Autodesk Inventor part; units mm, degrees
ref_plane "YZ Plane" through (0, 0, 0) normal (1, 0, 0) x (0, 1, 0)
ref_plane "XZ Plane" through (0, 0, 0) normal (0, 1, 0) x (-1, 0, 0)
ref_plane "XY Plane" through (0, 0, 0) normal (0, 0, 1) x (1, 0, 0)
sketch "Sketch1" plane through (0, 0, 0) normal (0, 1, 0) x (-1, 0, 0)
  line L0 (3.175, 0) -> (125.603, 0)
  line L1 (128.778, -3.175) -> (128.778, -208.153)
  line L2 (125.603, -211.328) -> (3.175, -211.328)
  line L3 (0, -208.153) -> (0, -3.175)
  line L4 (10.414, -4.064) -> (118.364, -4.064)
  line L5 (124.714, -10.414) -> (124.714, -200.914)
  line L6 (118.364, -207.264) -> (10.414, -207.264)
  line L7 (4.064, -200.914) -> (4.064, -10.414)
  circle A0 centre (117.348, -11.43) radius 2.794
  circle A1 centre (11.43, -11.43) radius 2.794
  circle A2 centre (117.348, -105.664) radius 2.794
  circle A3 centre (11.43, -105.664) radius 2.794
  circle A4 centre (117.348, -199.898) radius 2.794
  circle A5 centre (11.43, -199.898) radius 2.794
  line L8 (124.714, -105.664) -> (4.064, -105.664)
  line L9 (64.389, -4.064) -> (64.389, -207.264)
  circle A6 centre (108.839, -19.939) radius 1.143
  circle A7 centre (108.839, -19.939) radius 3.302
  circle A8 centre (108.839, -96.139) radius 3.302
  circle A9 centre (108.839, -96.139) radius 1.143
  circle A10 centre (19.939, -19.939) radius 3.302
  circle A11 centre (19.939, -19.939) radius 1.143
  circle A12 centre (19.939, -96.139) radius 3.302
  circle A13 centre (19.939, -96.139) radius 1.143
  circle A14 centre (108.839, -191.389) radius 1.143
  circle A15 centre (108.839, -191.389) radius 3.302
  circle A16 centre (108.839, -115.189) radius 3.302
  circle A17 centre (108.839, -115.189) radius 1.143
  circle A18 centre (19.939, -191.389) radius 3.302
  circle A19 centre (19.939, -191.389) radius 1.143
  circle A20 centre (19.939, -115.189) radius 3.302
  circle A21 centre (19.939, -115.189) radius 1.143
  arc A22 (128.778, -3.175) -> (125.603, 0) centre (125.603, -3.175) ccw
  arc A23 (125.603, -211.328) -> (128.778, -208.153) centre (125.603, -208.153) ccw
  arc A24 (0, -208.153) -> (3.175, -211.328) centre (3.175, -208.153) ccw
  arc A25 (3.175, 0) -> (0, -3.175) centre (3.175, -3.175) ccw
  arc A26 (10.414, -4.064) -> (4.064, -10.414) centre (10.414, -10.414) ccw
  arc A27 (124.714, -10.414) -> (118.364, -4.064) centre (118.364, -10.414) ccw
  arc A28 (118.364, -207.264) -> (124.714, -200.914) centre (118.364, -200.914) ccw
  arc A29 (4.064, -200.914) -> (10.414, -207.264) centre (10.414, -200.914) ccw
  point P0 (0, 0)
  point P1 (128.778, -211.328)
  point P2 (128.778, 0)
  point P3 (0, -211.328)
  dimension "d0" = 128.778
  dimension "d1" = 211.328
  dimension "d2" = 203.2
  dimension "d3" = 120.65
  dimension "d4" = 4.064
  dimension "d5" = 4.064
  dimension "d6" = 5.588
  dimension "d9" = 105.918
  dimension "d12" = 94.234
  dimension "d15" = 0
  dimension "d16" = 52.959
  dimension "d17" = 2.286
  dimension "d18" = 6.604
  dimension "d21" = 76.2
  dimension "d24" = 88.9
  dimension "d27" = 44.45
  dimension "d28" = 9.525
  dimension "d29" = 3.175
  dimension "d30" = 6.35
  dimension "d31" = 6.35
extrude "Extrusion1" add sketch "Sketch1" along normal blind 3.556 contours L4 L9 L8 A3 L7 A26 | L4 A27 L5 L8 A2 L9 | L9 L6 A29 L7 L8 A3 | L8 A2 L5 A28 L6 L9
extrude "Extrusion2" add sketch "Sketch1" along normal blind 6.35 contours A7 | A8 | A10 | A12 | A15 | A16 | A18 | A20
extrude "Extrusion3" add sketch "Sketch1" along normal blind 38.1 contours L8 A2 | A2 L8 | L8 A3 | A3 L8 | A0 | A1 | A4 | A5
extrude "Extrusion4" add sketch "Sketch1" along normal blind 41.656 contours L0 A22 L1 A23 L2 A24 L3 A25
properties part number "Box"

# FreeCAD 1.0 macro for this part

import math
import FreeCAD as App
import Part
import Sketcher

V = App.Vector
Q = App.Units.Quantity

doc = App.newDocument("Part")
body = doc.addObject("PartDesign::Body", "Body")

# Sketch on XZ plane
sketch1 = body.newObject("Sketcher::SketchObject", "Sketch")
sketch1.AttachmentSupport = (doc.getObject("XZ_Plane"), [""])
sketch1.MapMode = "FlatFace"
sketch1.addGeometry(Part.ArcOfCircle(Part.Circle(V(-10.4, -10.4, 0), V(0, 0, 1), 6.3), math.radians(0), math.radians(90)), False)
sketch1.addGeometry(Part.LineSegment(V(-4.1, -10.4, 0), V(-4.1, -200.9, 0)), False)
sketch1.addGeometry(Part.ArcOfCircle(Part.Circle(V(-10.4, -200.9, 0), V(0, 0, 1), 6.3), math.radians(-90), math.radians(0)), False)
sketch1.addGeometry(Part.LineSegment(V(-10.4, -207.3, 0), V(-118.4, -207.3, 0)), False)
sketch1.addGeometry(Part.ArcOfCircle(Part.Circle(V(-118.4, -200.9, 0), V(0, 0, 1), 6.4), math.radians(180), math.radians(270)), False)
sketch1.addGeometry(Part.LineSegment(V(-124.7, -200.9, 0), V(-124.7, -10.4, 0)), False)
sketch1.addGeometry(Part.ArcOfCircle(Part.Circle(V(-118.4, -10.4, 0), V(0, 0, 1), 6.3), math.radians(90), math.radians(180)), False)
sketch1.addGeometry(Part.LineSegment(V(-118.4, -4.1, 0), V(-10.4, -4.1, 0)), False)
sketch1.addGeometry(Part.Circle(V(-11.4, -105.7, 0), V(0, 0, 1), 2.8), False)
sketch1.addGeometry(Part.Circle(V(-19.9, -96.1, 0), V(0, 0, 1), 3.3), False)
sketch1.addGeometry(Part.Circle(V(-11.4, -11.4, 0), V(0, 0, 1), 2.8), False)
sketch1.addGeometry(Part.Circle(V(-19.9, -19.9, 0), V(0, 0, 1), 3.3), False)
sketch1.addGeometry(Part.Circle(V(-117.3, -105.7, 0), V(0, 0, 1), 2.8), False)
sketch1.addGeometry(Part.Circle(V(-117.3, -11.4, 0), V(0, 0, 1), 2.8), False)
sketch1.addGeometry(Part.Circle(V(-108.8, -96.1, 0), V(0, 0, 1), 3.3), False)
sketch1.addGeometry(Part.Circle(V(-108.8, -19.9, 0), V(0, 0, 1), 3.3), False)
sketch1.addGeometry(Part.Circle(V(-19.9, -191.4, 0), V(0, 0, 1), 3.3), False)
sketch1.addGeometry(Part.Circle(V(-19.9, -115.2, 0), V(0, 0, 1), 3.3), False)
sketch1.addGeometry(Part.Circle(V(-11.4, -199.9, 0), V(0, 0, 1), 2.8), False)
sketch1.addGeometry(Part.Circle(V(-117.3, -199.9, 0), V(0, 0, 1), 2.8), False)
sketch1.addGeometry(Part.Circle(V(-108.8, -115.2, 0), V(0, 0, 1), 3.3), False)
sketch1.addGeometry(Part.Circle(V(-108.8, -191.4, 0), V(0, 0, 1), 3.3), False)
sketch1.addConstraint(Sketcher.Constraint("Tangent", 0, 1, 1, 1))
sketch1.addConstraint(Sketcher.Constraint("Tangent", 1, 2, 2, 2))
sketch1.addConstraint(Sketcher.Constraint("Tangent", 2, 1, 3, 1))
sketch1.addConstraint(Sketcher.Constraint("Tangent", 3, 2, 4, 2))
sketch1.addConstraint(Sketcher.Constraint("Tangent", 4, 1, 5, 1))
sketch1.addConstraint(Sketcher.Constraint("Tangent", 5, 2, 6, 2))
sketch1.addConstraint(Sketcher.Constraint("Tangent", 6, 1, 7, 1))
sketch1.addConstraint(Sketcher.Constraint("Tangent", 7, 2, 0, 2))
sketch1.addConstraint(Sketcher.Constraint("Vertical", 1))
sketch1.addConstraint(Sketcher.Constraint("Horizontal", 3))
sketch1.addConstraint(Sketcher.Constraint("Vertical", 5))
sketch1.addConstraint(Sketcher.Constraint("Horizontal", 7))
sketch1.addConstraint(Sketcher.Constraint("Equal", 0, 2))
sketch1.addConstraint(Sketcher.Constraint("Equal", 2, 4))
sketch1.addConstraint(Sketcher.Constraint("Equal", 4, 6))
sketch1.addConstraint(Sketcher.Constraint("Equal", 8, 10))
sketch1.addConstraint(Sketcher.Constraint("Equal", 9, 11))
sketch1.addConstraint(Sketcher.Constraint("Equal", 10, 12))
sketch1.addConstraint(Sketcher.Constraint("Equal", 12, 13))
sketch1.addConstraint(Sketcher.Constraint("Equal", 11, 14))
sketch1.addConstraint(Sketcher.Constraint("Equal", 14, 15))
sketch1.addConstraint(Sketcher.Constraint("Equal", 15, 16))
sketch1.addConstraint(Sketcher.Constraint("Equal", 16, 17))
sketch1.addConstraint(Sketcher.Constraint("Equal", 13, 18))
sketch1.addConstraint(Sketcher.Constraint("Equal", 18, 19))
sketch1.addConstraint(Sketcher.Constraint("Equal", 17, 20))
sketch1.addConstraint(Sketcher.Constraint("Equal", 20, 21))
sketch1.addConstraint(Sketcher.Constraint("Horizontal", 8, 3, 12, 3))
sketch1.addConstraint(Sketcher.Constraint("Horizontal", 10, 3, 13, 3))
sketch1.addConstraint(Sketcher.Constraint("Horizontal", 9, 3, 14, 3))
sketch1.addConstraint(Sketcher.Constraint("Horizontal", 11, 3, 15, 3))
sketch1.addConstraint(Sketcher.Constraint("Horizontal", 18, 3, 19, 3))
sketch1.addConstraint(Sketcher.Constraint("Horizontal", 17, 3, 20, 3))
sketch1.addConstraint(Sketcher.Constraint("Horizontal", 16, 3, 21, 3))
sketch1.addConstraint(Sketcher.Constraint("Vertical", 8, 3, 10, 3))
sketch1.addConstraint(Sketcher.Constraint("Vertical", 9, 3, 11, 3))
sketch1.addConstraint(Sketcher.Constraint("Vertical", 12, 3, 13, 3))
sketch1.addConstraint(Sketcher.Constraint("Vertical", 14, 3, 15, 3))
sketch1.addConstraint(Sketcher.Constraint("Vertical", 11, 3, 16, 3))
sketch1.addConstraint(Sketcher.Constraint("Vertical", 16, 3, 17, 3))
sketch1.addConstraint(Sketcher.Constraint("Vertical", 10, 3, 18, 3))
sketch1.addConstraint(Sketcher.Constraint("Vertical", 13, 3, 19, 3))
sketch1.addConstraint(Sketcher.Constraint("Vertical", 15, 3, 20, 3))
sketch1.addConstraint(Sketcher.Constraint("Vertical", 20, 3, 21, 3))
sketch1.addConstraint(Sketcher.Constraint("Diameter", 8, Q("0.22 in")))
sketch1.addConstraint(Sketcher.Constraint("Diameter", 9, Q("0.26 in")))
sketch1.addConstraint(Sketcher.Constraint("Radius", 0, Q("0.25 in")))
sketch1.addConstraint(Sketcher.Constraint("DistanceY", 9, 3, 11, 3, Q("3 in")))
sketch1.addConstraint(Sketcher.Constraint("DistanceY", 16, 3, 17, 3, Q("3 in")))
sketch1.addConstraint(Sketcher.Constraint("DistanceX", 14, 3, 9, 3, Q("3.5 in")))
sketch1.addConstraint(Sketcher.Constraint("DistanceX", 0, 1, -1, 1, Q("0.16 in")))
sketch1.addConstraint(Sketcher.Constraint("DistanceY", 6, 1, -1, 1, Q("0.16 in")))
sketch1.addConstraint(Sketcher.Constraint("DistanceY", 8, 3, 10, 3, Q("3.71 in")))
sketch1.addConstraint(Sketcher.Constraint("DistanceX", 12, 3, 8, 3, Q("4.17 in")))
sketch1.addConstraint(Sketcher.Constraint("DistanceY", 18, 3, 8, 3, Q("3.71 in")))
sketch1.addConstraint(Sketcher.Constraint("DistanceY", 1, 2, 1, 1, Q("7.5 in")))
sketch1.addConstraint(Sketcher.Constraint("DistanceY", 8, 3, 9, 3, Q("0.375 in")))
sketch1.addConstraint(Sketcher.Constraint("DistanceX", 9, 3, 0, 3, Q("0.375 in")))
sketch1.addConstraint(Sketcher.Constraint("DistanceY", 11, 3, 0, 3, Q("0.375 in")))
sketch1.addConstraint(Sketcher.Constraint("DistanceX", 6, 3, 14, 3, Q("0.375 in")))
sketch1.addConstraint(Sketcher.Constraint("DistanceY", 2, 3, 16, 3, Q("0.375 in")))
sketch1.addConstraint(Sketcher.Constraint("DistanceX", 8, 3, -1, 1, Q("0.45 in")))
pad1 = body.newObject("PartDesign::Pad", "Pad")
pad1.Profile = sketch1
pad1.Length = Q("0.14 in")
pad1.Reversed = True

# Sketch on XZ plane
sketch2 = body.newObject("Sketcher::SketchObject", "Sketch001")
sketch2.AttachmentSupport = (doc.getObject("XZ_Plane"), [""])
sketch2.MapMode = "FlatFace"
sketch2.addGeometry(Part.Circle(V(-108.8, -19.9, 0), V(0, 0, 1), 3.3), False)
sketch2.addGeometry(Part.Circle(V(-108.8, -19.9, 0), V(0, 0, 1), 1.1), False)
sketch2.addGeometry(Part.Circle(V(-108.8, -96.1, 0), V(0, 0, 1), 3.3), False)
sketch2.addGeometry(Part.Circle(V(-108.8, -96.1, 0), V(0, 0, 1), 1.1), False)
sketch2.addGeometry(Part.Circle(V(-19.9, -19.9, 0), V(0, 0, 1), 3.3), False)
sketch2.addGeometry(Part.Circle(V(-19.9, -19.9, 0), V(0, 0, 1), 1.1), False)
sketch2.addGeometry(Part.Circle(V(-19.9, -96.1, 0), V(0, 0, 1), 3.3), False)
sketch2.addGeometry(Part.Circle(V(-19.9, -96.1, 0), V(0, 0, 1), 1.1), False)
sketch2.addGeometry(Part.Circle(V(-108.8, -191.4, 0), V(0, 0, 1), 3.3), False)
sketch2.addGeometry(Part.Circle(V(-108.8, -191.4, 0), V(0, 0, 1), 1.1), False)
sketch2.addGeometry(Part.Circle(V(-108.8, -115.2, 0), V(0, 0, 1), 3.3), False)
sketch2.addGeometry(Part.Circle(V(-108.8, -115.2, 0), V(0, 0, 1), 1.1), False)
sketch2.addGeometry(Part.Circle(V(-19.9, -191.4, 0), V(0, 0, 1), 3.3), False)
sketch2.addGeometry(Part.Circle(V(-19.9, -191.4, 0), V(0, 0, 1), 1.1), False)
sketch2.addGeometry(Part.Circle(V(-19.9, -115.2, 0), V(0, 0, 1), 3.3), False)
sketch2.addGeometry(Part.Circle(V(-19.9, -115.2, 0), V(0, 0, 1), 1.1), False)
sketch2.addConstraint(Sketcher.Constraint("Coincident", 1, 3, 0, 3))
sketch2.addConstraint(Sketcher.Constraint("Coincident", 3, 3, 2, 3))
sketch2.addConstraint(Sketcher.Constraint("Coincident", 5, 3, 4, 3))
sketch2.addConstraint(Sketcher.Constraint("Coincident", 7, 3, 6, 3))
sketch2.addConstraint(Sketcher.Constraint("Coincident", 9, 3, 8, 3))
sketch2.addConstraint(Sketcher.Constraint("Coincident", 11, 3, 10, 3))
sketch2.addConstraint(Sketcher.Constraint("Coincident", 13, 3, 12, 3))
sketch2.addConstraint(Sketcher.Constraint("Coincident", 15, 3, 14, 3))
sketch2.addConstraint(Sketcher.Constraint("Equal", 0, 2))
sketch2.addConstraint(Sketcher.Constraint("Equal", 1, 3))
sketch2.addConstraint(Sketcher.Constraint("Equal", 2, 4))
sketch2.addConstraint(Sketcher.Constraint("Equal", 3, 5))
sketch2.addConstraint(Sketcher.Constraint("Equal", 4, 6))
sketch2.addConstraint(Sketcher.Constraint("Equal", 5, 7))
sketch2.addConstraint(Sketcher.Constraint("Equal", 6, 8))
sketch2.addConstraint(Sketcher.Constraint("Equal", 7, 9))
sketch2.addConstraint(Sketcher.Constraint("Equal", 8, 10))
sketch2.addConstraint(Sketcher.Constraint("Equal", 9, 11))
sketch2.addConstraint(Sketcher.Constraint("Equal", 10, 12))
sketch2.addConstraint(Sketcher.Constraint("Equal", 11, 13))
sketch2.addConstraint(Sketcher.Constraint("Equal", 12, 14))
sketch2.addConstraint(Sketcher.Constraint("Equal", 13, 15))
sketch2.addConstraint(Sketcher.Constraint("Horizontal", 1, 3, 4, 3))
sketch2.addConstraint(Sketcher.Constraint("Horizontal", 3, 3, 6, 3))
sketch2.addConstraint(Sketcher.Constraint("Horizontal", 9, 3, 12, 3))
sketch2.addConstraint(Sketcher.Constraint("Horizontal", 11, 3, 14, 3))
sketch2.addConstraint(Sketcher.Constraint("Vertical", 1, 3, 2, 3))
sketch2.addConstraint(Sketcher.Constraint("Vertical", 5, 3, 6, 3))
sketch2.addConstraint(Sketcher.Constraint("Vertical", 3, 3, 8, 3))
sketch2.addConstraint(Sketcher.Constraint("Vertical", 9, 3, 10, 3))
sketch2.addConstraint(Sketcher.Constraint("Vertical", 7, 3, 12, 3))
sketch2.addConstraint(Sketcher.Constraint("Vertical", 13, 3, 14, 3))
sketch2.addConstraint(Sketcher.Constraint("Diameter", 0, Q("0.26 in")))
sketch2.addConstraint(Sketcher.Constraint("Diameter", 1, Q("0.09 in")))
sketch2.addConstraint(Sketcher.Constraint("DistanceY", 2, 3, 0, 3, Q("3 in")))
sketch2.addConstraint(Sketcher.Constraint("DistanceY", 8, 3, 10, 3, Q("3 in")))
sketch2.addConstraint(Sketcher.Constraint("DistanceX", 0, 3, 4, 3, Q("3.5 in")))
sketch2.addConstraint(Sketcher.Constraint("DistanceY", 8, 3, 2, 3, Q("3.75 in")))
sketch2.addConstraint(Sketcher.Constraint("DistanceX", 0, 3, -1, 1, Q("4.285 in")))
sketch2.addConstraint(Sketcher.Constraint("DistanceY", 0, 3, -1, 1, Q("0.785 in")))
pad2 = body.newObject("PartDesign::Pad", "Pad001")
pad2.Profile = sketch2
pad2.Length = Q("0.25 in")
pad2.Reversed = True

# Sketch on XZ plane
sketch3 = body.newObject("Sketcher::SketchObject", "Sketch002")
sketch3.AttachmentSupport = (doc.getObject("XZ_Plane"), [""])
sketch3.MapMode = "FlatFace"
sketch3.addGeometry(Part.Circle(V(-117.3, -105.7, 0), V(0, 0, 1), 2.8), False)
sketch3.addGeometry(Part.Circle(V(-11.4, -105.7, 0), V(0, 0, 1), 2.8), False)
sketch3.addGeometry(Part.Circle(V(-117.3, -11.4, 0), V(0, 0, 1), 2.8), False)
sketch3.addGeometry(Part.Circle(V(-11.4, -11.4, 0), V(0, 0, 1), 2.8), False)
sketch3.addGeometry(Part.Circle(V(-117.3, -199.9, 0), V(0, 0, 1), 2.8), False)
sketch3.addGeometry(Part.Circle(V(-11.4, -199.9, 0), V(0, 0, 1), 2.8), False)
sketch3.addConstraint(Sketcher.Constraint("Equal", 0, 1))
sketch3.addConstraint(Sketcher.Constraint("Equal", 1, 2))
sketch3.addConstraint(Sketcher.Constraint("Equal", 2, 3))
sketch3.addConstraint(Sketcher.Constraint("Equal", 3, 4))
sketch3.addConstraint(Sketcher.Constraint("Equal", 4, 5))
sketch3.addConstraint(Sketcher.Constraint("Horizontal", 0, 3, 1, 3))
sketch3.addConstraint(Sketcher.Constraint("Horizontal", 2, 3, 3, 3))
sketch3.addConstraint(Sketcher.Constraint("Horizontal", 4, 3, 5, 3))
sketch3.addConstraint(Sketcher.Constraint("Vertical", 0, 3, 2, 3))
sketch3.addConstraint(Sketcher.Constraint("Vertical", 1, 3, 3, 3))
sketch3.addConstraint(Sketcher.Constraint("Vertical", 2, 3, 4, 3))
sketch3.addConstraint(Sketcher.Constraint("Vertical", 3, 3, 5, 3))
sketch3.addConstraint(Sketcher.Constraint("Diameter", 0, Q("0.22 in")))
sketch3.addConstraint(Sketcher.Constraint("DistanceX", 0, 3, 1, 3, Q("4.17 in")))
sketch3.addConstraint(Sketcher.Constraint("DistanceY", 0, 3, 2, 3, Q("3.71 in")))
sketch3.addConstraint(Sketcher.Constraint("DistanceY", 4, 3, 0, 3, Q("3.71 in")))
sketch3.addConstraint(Sketcher.Constraint("DistanceX", 0, 3, -1, 1, Q("4.62 in")))
sketch3.addConstraint(Sketcher.Constraint("DistanceY", 0, 3, -1, 1, Q("4.16 in")))
pad3 = body.newObject("PartDesign::Pad", "Pad002")
pad3.Profile = sketch3
pad3.Length = Q("1.5 in")
pad3.Reversed = True

# Sketch on XZ plane
sketch4 = body.newObject("Sketcher::SketchObject", "Sketch003")
sketch4.AttachmentSupport = (doc.getObject("XZ_Plane"), [""])
sketch4.MapMode = "FlatFace"
sketch4.addGeometry(Part.LineSegment(V(-125.6, 0, 0), V(-3.2, 0, 0)), False)
sketch4.addGeometry(Part.ArcOfCircle(Part.Circle(V(-3.2, -3.2, 0), V(0, 0, 1), 3.2), math.radians(0), math.radians(90)), False)
sketch4.addGeometry(Part.LineSegment(V(0, -3.2, 0), V(0, -208.2, 0)), False)
sketch4.addGeometry(Part.ArcOfCircle(Part.Circle(V(-3.2, -208.2, 0), V(0, 0, 1), 3.2), math.radians(-90), math.radians(0)), False)
sketch4.addGeometry(Part.LineSegment(V(-3.2, -211.3, 0), V(-125.6, -211.3, 0)), False)
sketch4.addGeometry(Part.ArcOfCircle(Part.Circle(V(-125.6, -208.2, 0), V(0, 0, 1), 3.2), math.radians(180), math.radians(270)), False)
sketch4.addGeometry(Part.LineSegment(V(-128.8, -208.2, 0), V(-128.8, -3.2, 0)), False)
sketch4.addGeometry(Part.ArcOfCircle(Part.Circle(V(-125.6, -3.2, 0), V(0, 0, 1), 3.2), math.radians(90), math.radians(180)), False)
sketch4.addGeometry(Part.ArcOfCircle(Part.Circle(V(-10.4, -10.4, 0), V(0, 0, 1), 6.3), math.radians(0), math.radians(90)), False)
sketch4.addGeometry(Part.LineSegment(V(-10.4, -4.1, 0), V(-118.4, -4.1, 0)), False)
sketch4.addGeometry(Part.ArcOfCircle(Part.Circle(V(-118.4, -10.4, 0), V(0, 0, 1), 6.3), math.radians(90), math.radians(180)), False)
sketch4.addGeometry(Part.LineSegment(V(-124.7, -10.4, 0), V(-124.7, -200.9, 0)), False)
sketch4.addGeometry(Part.ArcOfCircle(Part.Circle(V(-118.4, -200.9, 0), V(0, 0, 1), 6.4), math.radians(180), math.radians(270)), False)
sketch4.addGeometry(Part.LineSegment(V(-118.4, -207.3, 0), V(-10.4, -207.3, 0)), False)
sketch4.addGeometry(Part.ArcOfCircle(Part.Circle(V(-10.4, -200.9, 0), V(0, 0, 1), 6.3), math.radians(-90), math.radians(0)), False)
sketch4.addGeometry(Part.LineSegment(V(-4.1, -200.9, 0), V(-4.1, -10.4, 0)), False)
sketch4.addConstraint(Sketcher.Constraint("Tangent", 0, 2, 1, 2))
sketch4.addConstraint(Sketcher.Constraint("Tangent", 1, 1, 2, 1))
sketch4.addConstraint(Sketcher.Constraint("Tangent", 2, 2, 3, 2))
sketch4.addConstraint(Sketcher.Constraint("Tangent", 3, 1, 4, 1))
sketch4.addConstraint(Sketcher.Constraint("Tangent", 4, 2, 5, 2))
sketch4.addConstraint(Sketcher.Constraint("Tangent", 5, 1, 6, 1))
sketch4.addConstraint(Sketcher.Constraint("Tangent", 6, 2, 7, 2))
sketch4.addConstraint(Sketcher.Constraint("Tangent", 7, 1, 0, 1))
sketch4.addConstraint(Sketcher.Constraint("Tangent", 8, 2, 9, 1))
sketch4.addConstraint(Sketcher.Constraint("Tangent", 9, 2, 10, 1))
sketch4.addConstraint(Sketcher.Constraint("Tangent", 10, 2, 11, 1))
sketch4.addConstraint(Sketcher.Constraint("Tangent", 11, 2, 12, 1))
sketch4.addConstraint(Sketcher.Constraint("Tangent", 12, 2, 13, 1))
sketch4.addConstraint(Sketcher.Constraint("Tangent", 13, 2, 14, 1))
sketch4.addConstraint(Sketcher.Constraint("Tangent", 14, 2, 15, 1))
sketch4.addConstraint(Sketcher.Constraint("Tangent", 15, 2, 8, 1))
sketch4.addConstraint(Sketcher.Constraint("Horizontal", 0))
sketch4.addConstraint(Sketcher.Constraint("Vertical", 2))
sketch4.addConstraint(Sketcher.Constraint("Horizontal", 4))
sketch4.addConstraint(Sketcher.Constraint("Vertical", 6))
sketch4.addConstraint(Sketcher.Constraint("Horizontal", 9))
sketch4.addConstraint(Sketcher.Constraint("Vertical", 11))
sketch4.addConstraint(Sketcher.Constraint("Horizontal", 13))
sketch4.addConstraint(Sketcher.Constraint("Vertical", 15))
sketch4.addConstraint(Sketcher.Constraint("Equal", 1, 3))
sketch4.addConstraint(Sketcher.Constraint("Equal", 3, 5))
sketch4.addConstraint(Sketcher.Constraint("Equal", 5, 7))
sketch4.addConstraint(Sketcher.Constraint("Equal", 8, 10))
sketch4.addConstraint(Sketcher.Constraint("Equal", 10, 12))
sketch4.addConstraint(Sketcher.Constraint("Equal", 12, 14))
sketch4.addConstraint(Sketcher.Constraint("PointOnObject", 0, 2, -1))
sketch4.addConstraint(Sketcher.Constraint("PointOnObject", 1, 1, -2))
sketch4.addConstraint(Sketcher.Constraint("Radius", 8, Q("0.25 in")))
sketch4.addConstraint(Sketcher.Constraint("Radius", 1, Q("0.125 in")))
sketch4.addConstraint(Sketcher.Constraint("DistanceY", 3, 1, -1, 1, Q("8.32 in")))
sketch4.addConstraint(Sketcher.Constraint("DistanceX", 5, 1, -1, 1, Q("5.07 in")))
sketch4.addConstraint(Sketcher.Constraint("DistanceY", 8, 2, -1, 1, Q("0.16 in")))
sketch4.addConstraint(Sketcher.Constraint("DistanceX", 14, 2, -1, 1, Q("0.16 in")))
sketch4.addConstraint(Sketcher.Constraint("DistanceX", 6, 2, 10, 2, Q("0.16 in")))
sketch4.addConstraint(Sketcher.Constraint("DistanceY", 4, 2, 12, 2, Q("0.16 in")))
pad4 = body.newObject("PartDesign::Pad", "Pad003")
pad4.Profile = sketch4
pad4.Length = Q("1.64 in")
pad4.Reversed = True

doc.recompute()
